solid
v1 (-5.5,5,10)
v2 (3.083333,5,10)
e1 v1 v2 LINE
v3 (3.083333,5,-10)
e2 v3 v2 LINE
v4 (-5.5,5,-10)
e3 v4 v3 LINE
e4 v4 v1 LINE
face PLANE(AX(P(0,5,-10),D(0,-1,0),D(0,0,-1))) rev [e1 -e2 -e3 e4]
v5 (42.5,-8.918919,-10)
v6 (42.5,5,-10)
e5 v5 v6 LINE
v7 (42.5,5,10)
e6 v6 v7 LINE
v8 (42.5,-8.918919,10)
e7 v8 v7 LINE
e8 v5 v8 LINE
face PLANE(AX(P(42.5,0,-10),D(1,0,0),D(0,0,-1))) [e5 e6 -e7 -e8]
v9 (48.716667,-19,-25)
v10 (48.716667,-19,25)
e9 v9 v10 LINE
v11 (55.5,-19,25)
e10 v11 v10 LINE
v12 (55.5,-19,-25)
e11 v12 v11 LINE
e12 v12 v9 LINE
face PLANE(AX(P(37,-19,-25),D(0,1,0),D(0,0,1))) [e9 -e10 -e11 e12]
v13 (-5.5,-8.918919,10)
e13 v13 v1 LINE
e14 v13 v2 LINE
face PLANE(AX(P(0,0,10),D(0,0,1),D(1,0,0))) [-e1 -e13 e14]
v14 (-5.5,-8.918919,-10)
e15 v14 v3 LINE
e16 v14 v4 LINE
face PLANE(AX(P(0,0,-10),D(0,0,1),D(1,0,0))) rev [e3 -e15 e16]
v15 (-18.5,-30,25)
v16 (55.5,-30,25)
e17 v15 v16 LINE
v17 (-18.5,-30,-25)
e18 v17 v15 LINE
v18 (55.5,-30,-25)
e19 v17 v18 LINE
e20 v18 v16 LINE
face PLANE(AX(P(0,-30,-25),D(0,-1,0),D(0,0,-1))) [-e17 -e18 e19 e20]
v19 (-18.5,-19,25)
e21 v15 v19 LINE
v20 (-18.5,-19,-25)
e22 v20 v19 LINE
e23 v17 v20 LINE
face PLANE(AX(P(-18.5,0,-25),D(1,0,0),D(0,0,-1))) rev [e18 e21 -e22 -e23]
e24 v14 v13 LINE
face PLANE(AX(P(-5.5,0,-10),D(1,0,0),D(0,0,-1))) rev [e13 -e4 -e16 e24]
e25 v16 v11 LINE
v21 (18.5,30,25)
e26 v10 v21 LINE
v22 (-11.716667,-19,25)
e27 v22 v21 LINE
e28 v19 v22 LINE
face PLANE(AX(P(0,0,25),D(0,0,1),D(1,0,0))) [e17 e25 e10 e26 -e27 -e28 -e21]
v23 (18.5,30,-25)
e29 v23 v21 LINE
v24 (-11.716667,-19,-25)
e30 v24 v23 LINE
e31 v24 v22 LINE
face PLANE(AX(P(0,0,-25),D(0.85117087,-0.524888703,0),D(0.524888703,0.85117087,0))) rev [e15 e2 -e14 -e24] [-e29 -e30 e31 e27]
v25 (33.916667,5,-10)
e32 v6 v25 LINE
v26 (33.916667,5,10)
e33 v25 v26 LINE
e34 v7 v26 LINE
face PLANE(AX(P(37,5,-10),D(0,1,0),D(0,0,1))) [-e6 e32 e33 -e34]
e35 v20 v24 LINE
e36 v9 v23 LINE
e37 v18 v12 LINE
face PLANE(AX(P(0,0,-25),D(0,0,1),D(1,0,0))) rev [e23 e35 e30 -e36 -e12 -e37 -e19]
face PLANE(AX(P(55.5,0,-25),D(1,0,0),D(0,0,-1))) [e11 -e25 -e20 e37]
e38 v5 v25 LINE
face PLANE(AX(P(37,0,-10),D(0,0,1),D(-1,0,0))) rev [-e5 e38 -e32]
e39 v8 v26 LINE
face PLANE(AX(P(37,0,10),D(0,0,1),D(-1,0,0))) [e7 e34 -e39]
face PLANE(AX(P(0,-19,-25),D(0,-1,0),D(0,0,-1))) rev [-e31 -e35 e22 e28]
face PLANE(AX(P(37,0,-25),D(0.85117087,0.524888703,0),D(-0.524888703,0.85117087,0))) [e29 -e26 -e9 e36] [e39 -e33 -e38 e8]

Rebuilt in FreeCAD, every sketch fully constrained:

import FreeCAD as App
import Part
import Sketcher


def add_polygon(sketch, points):
    """Adds a closed chain of lines whose ends are joined by coincident constraints."""
    first, n = sketch.GeometryCount, len(points)
    for a, b in zip(points, points[1:] + points[:1]):
        sketch.addGeometry(Part.LineSegment(App.Vector(*a, 0), App.Vector(*b, 0)), False)
    for i in range(n):
        sketch.addConstraint(Sketcher.Constraint("Coincident", first + i, 2, first + (i + 1) % n, 1))

doc = App.newDocument("Part")
body = doc.addObject("PartDesign::Body", "Body")

# Sketch on XY plane
sketch1 = doc.addObject("Sketcher::SketchObject", "Sketch")
body.addObject(sketch1)
sketch1.AttachmentSupport = (doc.XY_Plane, [""])
sketch1.MapMode = "FlatFace"
add_polygon(sketch1, [(18, 30), (3, 5), (-6, -9), (-12, -19), (-18, -19), (-18, -30), (18, -30)])  # lines 0-6
sketch1.addConstraint(Sketcher.Constraint("Horizontal", 3))
sketch1.addConstraint(Sketcher.Constraint("Vertical", 4))
sketch1.addConstraint(Sketcher.Constraint("Horizontal", 5))
sketch1.addConstraint(Sketcher.Constraint("Vertical", 6))
sketch1.addConstraint(Sketcher.Constraint("Symmetric", 4, 2, 6, 2, -1, 1))
sketch1.addConstraint(Sketcher.Constraint("Parallel", 0, 1))
sketch1.addConstraint(Sketcher.Constraint("Parallel", 1, 2))
sketch1.addConstraint(Sketcher.Constraint("DistanceX", 5, 1, 5, 2, 37.0))
sketch1.addConstraint(Sketcher.Constraint("DistanceY", 4, 2, 4, 1, 11.0))
sketch1.addConstraint(Sketcher.Constraint("DistanceY", 6, 1, 6, 2, 60.0))
sketch1.addConstraint(Sketcher.Constraint("DistanceY", -1, 1, 0, 2, 5.0))
sketch1.addConstraint(Sketcher.Constraint("DistanceX", 3, 2, 1, 2, 13.0))
sketch1.addConstraint(Sketcher.Constraint("DistanceX", 2, 2, 0, 2, 14.8))
pad1 = doc.addObject("PartDesign::Pad", "Pad")
body.addObject(pad1)
pad1.Profile = sketch1
pad1.Length = 50
pad1.Midplane = True

# Sketch on XY plane
sketch2 = doc.addObject("Sketcher::SketchObject", "Sketch001")
body.addObject(sketch2)
sketch2.AttachmentSupport = (doc.XY_Plane, [""])
sketch2.MapMode = "FlatFace"
add_polygon(sketch2, [(-6, 5), (-6, -9), (3, 5)])  # lines 0-2
sketch2.addConstraint(Sketcher.Constraint("Vertical", 0))
sketch2.addConstraint(Sketcher.Constraint("Horizontal", 2))
sketch2.addConstraint(Sketcher.Constraint("DistanceY", -1, 1, 1, 2, 5.0))
sketch2.addConstraint(Sketcher.Constraint("DistanceX", 0, 2, -1, 1, 5.5))
sketch2.addConstraint(Sketcher.Constraint("DistanceY", 0, 2, 0, 1, 13.918919))
sketch2.addConstraint(Sketcher.Constraint("DistanceX", 2, 2, 2, 1, 8.583333))
pad2 = doc.addObject("PartDesign::Pad", "Pad001")
body.addObject(pad2)
pad2.Profile = sketch2
pad2.Length = 20
pad2.Midplane = True
doc.recompute()

datumplane = doc.addObject("PartDesign::Plane", "DatumPlane")
body.addObject(datumplane)
datumplane.AttachmentSupport = (doc.YZ_Plane, [""])
datumplane.MapMode = "FlatFace"
datumplane.AttachmentOffset = App.Placement(App.Vector(0, 0, 18.5), App.Rotation())
mirrored = doc.addObject("PartDesign::Mirrored", "Mirrored")
body.addObject(mirrored)
mirrored.Originals = [pad1, pad2]
mirrored.MirrorPlane = (datumplane, [""])
body.Tip = mirrored

doc.recompute()
